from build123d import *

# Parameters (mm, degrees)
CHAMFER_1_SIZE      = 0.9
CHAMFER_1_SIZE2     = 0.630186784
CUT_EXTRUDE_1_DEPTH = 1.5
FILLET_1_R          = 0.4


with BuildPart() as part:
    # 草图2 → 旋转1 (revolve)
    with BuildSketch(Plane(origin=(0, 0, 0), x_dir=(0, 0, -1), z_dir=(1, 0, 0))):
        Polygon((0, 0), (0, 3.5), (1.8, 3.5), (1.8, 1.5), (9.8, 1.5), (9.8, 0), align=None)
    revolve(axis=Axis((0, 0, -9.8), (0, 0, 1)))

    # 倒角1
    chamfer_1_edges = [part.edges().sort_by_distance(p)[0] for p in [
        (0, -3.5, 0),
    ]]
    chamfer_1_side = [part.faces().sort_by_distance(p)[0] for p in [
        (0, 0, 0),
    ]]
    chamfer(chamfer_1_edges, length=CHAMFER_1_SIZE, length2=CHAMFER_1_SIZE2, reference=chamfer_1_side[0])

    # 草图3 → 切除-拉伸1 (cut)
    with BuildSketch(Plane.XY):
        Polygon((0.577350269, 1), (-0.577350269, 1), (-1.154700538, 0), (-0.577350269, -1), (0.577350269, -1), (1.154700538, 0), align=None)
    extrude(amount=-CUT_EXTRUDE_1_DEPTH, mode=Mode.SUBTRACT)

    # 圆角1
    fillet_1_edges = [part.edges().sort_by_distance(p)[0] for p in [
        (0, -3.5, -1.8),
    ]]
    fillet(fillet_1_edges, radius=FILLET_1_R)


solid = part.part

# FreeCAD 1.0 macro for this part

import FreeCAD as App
import Part
import Sketcher
Q = App.Units.Quantity


def edges_at(feature, points):
    """Names of the edges that pass closest to the given points."""
    edges = feature.Shape.Edges
    near = lambda p: min(range(len(edges)), key=lambda i: edges[i].distToShape(Part.Vertex(*p))[0])
    return sorted({f"Edge{near(p) + 1}" for p in points})

doc = App.newDocument("Part")
body = doc.addObject("PartDesign::Body", "Body")

sketch1 = body.newObject("Sketcher::SketchObject", "Sketch")
sketch1.AttachmentSupport = (doc.getObject("YZ_Plane"), [""])
sketch1.MapMode = "FlatFace"
sketch1.addGeometry(Part.LineSegment(App.Vector(3.5, 0, 0), App.Vector(0, 0, 0)), False)
sketch1.addGeometry(Part.LineSegment(App.Vector(0, 0, 0), App.Vector(0, -9.8, 0)), False)
sketch1.addGeometry(Part.LineSegment(App.Vector(0, -9.8, 0), App.Vector(1.5, -9.8, 0)), False)
sketch1.addGeometry(Part.LineSegment(App.Vector(1.5, -9.8, 0), App.Vector(1.5, -1.8, 0)), False)
sketch1.addGeometry(Part.LineSegment(App.Vector(1.5, -1.8, 0), App.Vector(3.5, -1.8, 0)), False)
sketch1.addGeometry(Part.LineSegment(App.Vector(3.5, -1.8, 0), App.Vector(3.5, 0, 0)), False)
sketch1.addConstraint(Sketcher.Constraint("Coincident", 0, 2, 1, 1))
sketch1.addConstraint(Sketcher.Constraint("Coincident", 1, 2, 2, 1))
sketch1.addConstraint(Sketcher.Constraint("Coincident", 2, 2, 3, 1))
sketch1.addConstraint(Sketcher.Constraint("Coincident", 3, 2, 4, 1))
sketch1.addConstraint(Sketcher.Constraint("Coincident", 4, 2, 5, 1))
sketch1.addConstraint(Sketcher.Constraint("Coincident", 5, 2, 0, 1))
sketch1.addConstraint(Sketcher.Constraint("Horizontal", 0))
sketch1.addConstraint(Sketcher.Constraint("Vertical", 1))
sketch1.addConstraint(Sketcher.Constraint("Horizontal", 2))
sketch1.addConstraint(Sketcher.Constraint("Vertical", 3))
sketch1.addConstraint(Sketcher.Constraint("Horizontal", 4))
sketch1.addConstraint(Sketcher.Constraint("Vertical", 5))
sketch1.addConstraint(Sketcher.Constraint("Coincident", 0, 2, -1, 1))
sketch1.addConstraint(Sketcher.Constraint("DistanceX", 4, 1, 4, 2, Q("2 mm")))
sketch1.addConstraint(Sketcher.Constraint("DistanceY", 3, 1, 3, 2, Q("8 mm")))
sketch1.addConstraint(Sketcher.Constraint("DistanceX", 0, 2, 0, 1, Q("3.5 mm")))
sketch1.addConstraint(Sketcher.Constraint("DistanceY", 1, 2, 1, 1, Q("9.8 mm")))
revolution = body.newObject("PartDesign::Revolution", "Revolution")
revolution.Profile = sketch1
revolution.ReferenceAxis = (sketch1, ["V_Axis"])
revolution.Angle = 360
doc.recompute()

chamfer = body.newObject("PartDesign::Chamfer", "Chamfer")
chamfer.Base = (revolution, edges_at(revolution, [(0, -3.5, 0)]))
chamfer.ChamferType = "Two distances"
chamfer.Size = 0.9
chamfer.Size2 = 0.630187

sketch2 = body.newObject("Sketcher::SketchObject", "Sketch001")
sketch2.AttachmentSupport = (doc.getObject("XY_Plane"), [""])
sketch2.MapMode = "FlatFace"
sketch2.addGeometry(Part.LineSegment(App.Vector(0.6, 1, 0), App.Vector(-0.6, 1, 0)), False)
sketch2.addGeometry(Part.LineSegment(App.Vector(-0.6, 1, 0), App.Vector(-1.2, 0, 0)), False)
sketch2.addGeometry(Part.LineSegment(App.Vector(-1.2, 0, 0), App.Vector(-0.6, -1, 0)), False)
sketch2.addGeometry(Part.LineSegment(App.Vector(-0.6, -1, 0), App.Vector(0.6, -1, 0)), False)
sketch2.addGeometry(Part.LineSegment(App.Vector(0.6, -1, 0), App.Vector(1.2, 0, 0)), False)
sketch2.addGeometry(Part.LineSegment(App.Vector(1.2, 0, 0), App.Vector(0.6, 1, 0)), False)
sketch2.addConstraint(Sketcher.Constraint("Coincident", 0, 2, 1, 1))
sketch2.addConstraint(Sketcher.Constraint("Coincident", 1, 2, 2, 1))
sketch2.addConstraint(Sketcher.Constraint("Coincident", 2, 2, 3, 1))
sketch2.addConstraint(Sketcher.Constraint("Coincident", 3, 2, 4, 1))
sketch2.addConstraint(Sketcher.Constraint("Coincident", 4, 2, 5, 1))
sketch2.addConstraint(Sketcher.Constraint("Coincident", 5, 2, 0, 1))
sketch2.addConstraint(Sketcher.Constraint("Horizontal", 0))
sketch2.addConstraint(Sketcher.Constraint("Horizontal", 3))
sketch2.addConstraint(Sketcher.Constraint("Symmetric", 0, 2, 3, 2, -1, 1))
sketch2.addConstraint(Sketcher.Constraint("Symmetric", 1, 2, 4, 2, -1, 1))
sketch2.addConstraint(Sketcher.Constraint("PointOnObject", 1, 2, -1))
sketch2.addConstraint(Sketcher.Constraint("Parallel", 2, 5))
sketch2.addConstraint(Sketcher.Constraint("Vertical", 0, 2, 2, 2))
sketch2.addConstraint(Sketcher.Constraint("Angle", 1, Q("-120 deg")))
sketch2.addConstraint(Sketcher.Constraint("DistanceY", -1, 1, 0, 2, Q("1 mm")))
sketch2.addConstraint(Sketcher.Constraint("DistanceX", 0, 2, 0, 1, Q("1.154701 mm")))
pocket1 = body.newObject("PartDesign::Pocket", "Pocket")
pocket1.Profile = sketch2
pocket1.Length = 1.5
doc.recompute()

fillet = body.newObject("PartDesign::Fillet", "Fillet")
fillet.Base = (pocket1, edges_at(pocket1, [(0, -3.5, -1.8)]))
fillet.Radius = 0.4

doc.recompute()
